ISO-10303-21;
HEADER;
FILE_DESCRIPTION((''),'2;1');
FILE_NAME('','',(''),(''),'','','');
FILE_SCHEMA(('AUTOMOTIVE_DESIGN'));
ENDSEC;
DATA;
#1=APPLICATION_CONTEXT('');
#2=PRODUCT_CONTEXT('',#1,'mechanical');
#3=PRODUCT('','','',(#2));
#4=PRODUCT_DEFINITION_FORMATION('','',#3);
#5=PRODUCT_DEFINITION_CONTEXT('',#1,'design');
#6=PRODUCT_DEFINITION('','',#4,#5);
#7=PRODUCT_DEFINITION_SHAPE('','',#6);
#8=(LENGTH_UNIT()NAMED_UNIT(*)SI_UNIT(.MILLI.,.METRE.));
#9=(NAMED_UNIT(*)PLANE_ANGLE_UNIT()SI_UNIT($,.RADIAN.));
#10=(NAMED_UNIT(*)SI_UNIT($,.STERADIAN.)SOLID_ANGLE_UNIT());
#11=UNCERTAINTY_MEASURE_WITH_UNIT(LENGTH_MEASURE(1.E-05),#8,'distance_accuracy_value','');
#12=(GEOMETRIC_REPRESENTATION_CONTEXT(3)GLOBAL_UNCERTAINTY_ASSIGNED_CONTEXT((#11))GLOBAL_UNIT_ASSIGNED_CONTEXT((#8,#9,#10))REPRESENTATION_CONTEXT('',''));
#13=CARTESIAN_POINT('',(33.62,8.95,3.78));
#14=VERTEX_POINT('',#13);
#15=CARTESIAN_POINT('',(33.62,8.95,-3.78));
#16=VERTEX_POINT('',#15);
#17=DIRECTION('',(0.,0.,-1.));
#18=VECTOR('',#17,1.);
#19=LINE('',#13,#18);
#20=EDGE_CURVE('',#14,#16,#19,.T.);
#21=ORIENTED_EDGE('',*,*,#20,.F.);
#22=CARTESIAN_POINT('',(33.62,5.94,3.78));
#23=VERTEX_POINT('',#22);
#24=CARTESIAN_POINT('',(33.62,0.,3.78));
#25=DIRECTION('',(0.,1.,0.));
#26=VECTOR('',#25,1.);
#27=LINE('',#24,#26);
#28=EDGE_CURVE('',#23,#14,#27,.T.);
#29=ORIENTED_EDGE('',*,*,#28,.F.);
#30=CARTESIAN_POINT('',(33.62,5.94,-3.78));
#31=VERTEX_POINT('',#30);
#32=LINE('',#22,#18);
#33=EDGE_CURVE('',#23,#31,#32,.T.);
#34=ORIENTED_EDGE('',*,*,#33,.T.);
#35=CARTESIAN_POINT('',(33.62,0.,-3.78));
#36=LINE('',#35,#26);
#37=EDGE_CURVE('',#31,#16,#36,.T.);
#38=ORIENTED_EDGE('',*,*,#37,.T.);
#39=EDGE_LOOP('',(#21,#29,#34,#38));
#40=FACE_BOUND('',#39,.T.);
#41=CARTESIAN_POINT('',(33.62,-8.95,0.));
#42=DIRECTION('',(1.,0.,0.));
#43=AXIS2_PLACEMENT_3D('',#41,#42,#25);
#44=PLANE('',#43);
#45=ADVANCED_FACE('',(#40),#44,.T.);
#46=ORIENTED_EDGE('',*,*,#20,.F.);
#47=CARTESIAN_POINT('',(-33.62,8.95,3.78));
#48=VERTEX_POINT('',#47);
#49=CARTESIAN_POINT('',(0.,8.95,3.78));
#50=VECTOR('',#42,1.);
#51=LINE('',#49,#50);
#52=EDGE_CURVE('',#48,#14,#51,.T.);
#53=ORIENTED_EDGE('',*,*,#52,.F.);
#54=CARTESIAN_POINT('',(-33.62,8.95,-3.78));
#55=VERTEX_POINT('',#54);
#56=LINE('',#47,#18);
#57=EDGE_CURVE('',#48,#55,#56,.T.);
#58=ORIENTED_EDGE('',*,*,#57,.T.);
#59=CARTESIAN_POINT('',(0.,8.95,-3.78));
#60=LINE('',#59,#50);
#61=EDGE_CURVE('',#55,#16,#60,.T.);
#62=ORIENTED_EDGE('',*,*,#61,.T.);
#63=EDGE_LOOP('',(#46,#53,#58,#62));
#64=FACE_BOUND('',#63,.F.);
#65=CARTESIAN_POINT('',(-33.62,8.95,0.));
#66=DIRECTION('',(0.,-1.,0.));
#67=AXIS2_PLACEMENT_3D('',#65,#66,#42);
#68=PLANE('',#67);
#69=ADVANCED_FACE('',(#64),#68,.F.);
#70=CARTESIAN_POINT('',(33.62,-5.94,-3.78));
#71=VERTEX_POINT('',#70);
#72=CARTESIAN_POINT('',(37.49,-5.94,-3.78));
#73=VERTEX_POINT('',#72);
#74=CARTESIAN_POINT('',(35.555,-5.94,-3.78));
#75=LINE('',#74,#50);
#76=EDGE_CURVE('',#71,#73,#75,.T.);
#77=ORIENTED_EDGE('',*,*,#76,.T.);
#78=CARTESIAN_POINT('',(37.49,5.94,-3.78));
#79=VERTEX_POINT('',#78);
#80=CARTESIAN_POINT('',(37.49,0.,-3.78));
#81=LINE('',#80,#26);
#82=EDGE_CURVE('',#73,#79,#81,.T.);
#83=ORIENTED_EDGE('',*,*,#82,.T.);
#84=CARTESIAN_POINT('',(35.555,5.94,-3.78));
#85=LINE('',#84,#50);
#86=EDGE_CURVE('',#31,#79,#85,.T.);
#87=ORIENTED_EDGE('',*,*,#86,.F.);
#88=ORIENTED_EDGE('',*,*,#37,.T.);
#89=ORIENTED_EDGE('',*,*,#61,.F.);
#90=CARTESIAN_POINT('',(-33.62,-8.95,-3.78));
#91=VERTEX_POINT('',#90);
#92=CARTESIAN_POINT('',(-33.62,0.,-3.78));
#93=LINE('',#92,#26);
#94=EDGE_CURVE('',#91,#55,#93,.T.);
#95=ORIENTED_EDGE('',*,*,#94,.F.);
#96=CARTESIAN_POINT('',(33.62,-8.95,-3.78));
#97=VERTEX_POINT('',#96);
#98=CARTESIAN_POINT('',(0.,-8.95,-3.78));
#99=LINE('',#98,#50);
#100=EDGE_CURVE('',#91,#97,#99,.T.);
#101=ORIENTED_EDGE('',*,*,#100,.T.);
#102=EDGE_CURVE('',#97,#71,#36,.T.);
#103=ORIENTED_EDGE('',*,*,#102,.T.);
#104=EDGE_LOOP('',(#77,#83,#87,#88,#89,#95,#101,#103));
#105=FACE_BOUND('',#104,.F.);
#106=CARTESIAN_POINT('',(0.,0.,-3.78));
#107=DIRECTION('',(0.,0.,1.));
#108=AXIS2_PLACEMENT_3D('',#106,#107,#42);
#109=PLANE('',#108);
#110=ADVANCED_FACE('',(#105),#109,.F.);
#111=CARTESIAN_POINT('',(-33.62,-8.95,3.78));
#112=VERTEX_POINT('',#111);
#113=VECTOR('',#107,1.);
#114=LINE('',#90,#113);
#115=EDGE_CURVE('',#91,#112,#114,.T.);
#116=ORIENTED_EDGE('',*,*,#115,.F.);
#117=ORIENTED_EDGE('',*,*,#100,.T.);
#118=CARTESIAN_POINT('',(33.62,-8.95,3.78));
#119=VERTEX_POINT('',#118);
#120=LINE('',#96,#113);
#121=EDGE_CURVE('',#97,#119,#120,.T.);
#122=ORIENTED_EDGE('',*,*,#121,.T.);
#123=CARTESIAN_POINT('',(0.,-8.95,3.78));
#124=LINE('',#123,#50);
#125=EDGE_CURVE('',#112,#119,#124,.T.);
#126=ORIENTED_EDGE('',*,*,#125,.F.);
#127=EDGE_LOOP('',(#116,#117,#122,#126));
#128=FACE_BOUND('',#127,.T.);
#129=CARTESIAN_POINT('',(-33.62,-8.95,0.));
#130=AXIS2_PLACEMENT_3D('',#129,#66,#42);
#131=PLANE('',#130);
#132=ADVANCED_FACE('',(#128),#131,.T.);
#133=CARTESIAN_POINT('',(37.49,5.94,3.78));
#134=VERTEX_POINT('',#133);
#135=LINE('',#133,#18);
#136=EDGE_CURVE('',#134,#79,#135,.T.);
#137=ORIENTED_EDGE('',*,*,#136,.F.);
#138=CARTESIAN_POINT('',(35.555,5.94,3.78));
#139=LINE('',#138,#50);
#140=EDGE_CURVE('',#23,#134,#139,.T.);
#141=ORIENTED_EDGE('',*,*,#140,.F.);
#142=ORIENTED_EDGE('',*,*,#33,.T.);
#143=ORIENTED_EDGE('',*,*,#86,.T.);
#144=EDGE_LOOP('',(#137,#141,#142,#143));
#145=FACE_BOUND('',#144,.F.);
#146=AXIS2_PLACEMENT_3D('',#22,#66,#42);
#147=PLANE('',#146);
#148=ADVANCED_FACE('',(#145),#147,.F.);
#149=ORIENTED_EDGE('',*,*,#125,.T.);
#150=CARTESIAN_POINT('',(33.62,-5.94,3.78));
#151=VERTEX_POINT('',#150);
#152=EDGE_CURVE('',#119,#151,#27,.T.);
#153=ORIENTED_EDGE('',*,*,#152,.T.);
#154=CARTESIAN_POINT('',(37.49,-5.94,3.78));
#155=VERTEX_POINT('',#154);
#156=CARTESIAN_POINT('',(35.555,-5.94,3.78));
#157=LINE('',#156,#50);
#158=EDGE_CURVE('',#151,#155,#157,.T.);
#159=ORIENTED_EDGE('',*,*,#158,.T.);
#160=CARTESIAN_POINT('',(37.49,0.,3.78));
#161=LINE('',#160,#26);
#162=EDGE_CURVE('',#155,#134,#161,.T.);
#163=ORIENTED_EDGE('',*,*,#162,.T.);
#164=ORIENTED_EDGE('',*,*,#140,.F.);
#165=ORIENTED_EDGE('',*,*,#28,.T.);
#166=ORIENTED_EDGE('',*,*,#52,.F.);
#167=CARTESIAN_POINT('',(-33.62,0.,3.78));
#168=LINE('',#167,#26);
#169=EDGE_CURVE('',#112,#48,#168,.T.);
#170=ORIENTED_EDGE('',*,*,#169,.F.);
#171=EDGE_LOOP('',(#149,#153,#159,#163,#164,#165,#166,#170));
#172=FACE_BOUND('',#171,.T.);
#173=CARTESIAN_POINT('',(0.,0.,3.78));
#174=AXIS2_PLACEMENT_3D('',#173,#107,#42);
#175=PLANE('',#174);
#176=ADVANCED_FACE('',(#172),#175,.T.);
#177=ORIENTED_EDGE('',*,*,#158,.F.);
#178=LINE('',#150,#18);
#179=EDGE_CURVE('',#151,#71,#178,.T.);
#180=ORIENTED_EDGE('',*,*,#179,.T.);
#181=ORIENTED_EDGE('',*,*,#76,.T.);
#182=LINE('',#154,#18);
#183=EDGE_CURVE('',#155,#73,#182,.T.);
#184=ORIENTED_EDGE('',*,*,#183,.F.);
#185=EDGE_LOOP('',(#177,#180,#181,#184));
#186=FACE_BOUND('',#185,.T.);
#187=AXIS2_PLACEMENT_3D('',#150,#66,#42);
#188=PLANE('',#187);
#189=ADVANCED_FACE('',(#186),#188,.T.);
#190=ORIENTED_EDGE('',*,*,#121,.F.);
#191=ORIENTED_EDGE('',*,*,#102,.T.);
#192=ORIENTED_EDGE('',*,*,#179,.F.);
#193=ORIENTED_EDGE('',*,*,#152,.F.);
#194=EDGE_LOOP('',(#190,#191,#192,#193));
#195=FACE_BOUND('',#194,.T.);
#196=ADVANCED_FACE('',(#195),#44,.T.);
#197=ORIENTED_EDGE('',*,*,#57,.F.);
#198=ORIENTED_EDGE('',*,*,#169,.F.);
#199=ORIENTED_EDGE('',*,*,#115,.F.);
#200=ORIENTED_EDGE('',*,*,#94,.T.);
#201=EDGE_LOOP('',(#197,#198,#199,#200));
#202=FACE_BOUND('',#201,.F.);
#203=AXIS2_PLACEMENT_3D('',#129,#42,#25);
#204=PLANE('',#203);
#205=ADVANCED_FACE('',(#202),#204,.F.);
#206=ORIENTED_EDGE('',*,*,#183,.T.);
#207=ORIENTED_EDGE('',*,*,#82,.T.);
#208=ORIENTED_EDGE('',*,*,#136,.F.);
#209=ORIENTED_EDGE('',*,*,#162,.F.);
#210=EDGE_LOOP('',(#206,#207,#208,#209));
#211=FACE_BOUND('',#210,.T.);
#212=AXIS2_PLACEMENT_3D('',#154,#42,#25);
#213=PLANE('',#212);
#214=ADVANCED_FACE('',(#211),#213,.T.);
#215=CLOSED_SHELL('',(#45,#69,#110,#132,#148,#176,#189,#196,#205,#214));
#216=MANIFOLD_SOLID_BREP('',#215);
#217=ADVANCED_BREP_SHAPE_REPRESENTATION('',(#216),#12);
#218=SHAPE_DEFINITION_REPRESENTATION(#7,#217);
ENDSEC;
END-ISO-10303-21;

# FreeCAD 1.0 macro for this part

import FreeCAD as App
import Part
import Sketcher

doc = App.newDocument("Part")
body = doc.addObject("PartDesign::Body", "Body")

# Sketch on XY plane
sketch1 = body.newObject("Sketcher::SketchObject", "Sketch")
sketch1.AttachmentSupport = (doc.getObject("XY_Plane"), [""])
sketch1.MapMode = "FlatFace"
sketch1.addGeometry(Part.LineSegment(App.Vector(-34, 9, 0), App.Vector(-34, -9, 0)), False)
sketch1.addGeometry(Part.LineSegment(App.Vector(-34, -9, 0), App.Vector(34, -9, 0)), False)
sketch1.addGeometry(Part.LineSegment(App.Vector(34, -9, 0), App.Vector(34, 9, 0)), False)
sketch1.addGeometry(Part.LineSegment(App.Vector(34, 9, 0), App.Vector(-34, 9, 0)), False)
sketch1.addConstraint(Sketcher.Constraint("Coincident", 0, 2, 1, 1))
sketch1.addConstraint(Sketcher.Constraint("Coincident", 1, 2, 2, 1))
sketch1.addConstraint(Sketcher.Constraint("Coincident", 2, 2, 3, 1))
sketch1.addConstraint(Sketcher.Constraint("Coincident", 3, 2, 0, 1))
sketch1.addConstraint(Sketcher.Constraint("Vertical", 0))
sketch1.addConstraint(Sketcher.Constraint("Horizontal", 1))
sketch1.addConstraint(Sketcher.Constraint("Vertical", 2))
sketch1.addConstraint(Sketcher.Constraint("Horizontal", 3))
sketch1.addConstraint(Sketcher.Constraint("Symmetric", 0, 2, 2, 2, -1, 1))
sketch1.addConstraint(Sketcher.Constraint("DistanceY", 0, 2, 0, 1, 17.9))
sketch1.addConstraint(Sketcher.Constraint("DistanceX", 1, 1, 1, 2, 67.24))
pad1 = body.newObject("PartDesign::Pad", "Pad")
pad1.Profile = sketch1
pad1.Length = 7.56
pad1.Midplane = True

# Sketch on XY plane
sketch2 = body.newObject("Sketcher::SketchObject", "Sketch001")
sketch2.AttachmentSupport = (doc.getObject("XY_Plane"), [""])
sketch2.MapMode = "FlatFace"
sketch2.AttachmentOffset = App.Placement(App.Vector(0, 0, 3.78), App.Rotation())
sketch2.addGeometry(Part.LineSegment(App.Vector(33.6, 5.9, 0), App.Vector(33.6, -5.9, 0)), False)
sketch2.addGeometry(Part.LineSegment(App.Vector(33.6, -5.9, 0), App.Vector(37.5, -5.9, 0)), False)
sketch2.addGeometry(Part.LineSegment(App.Vector(37.5, -5.9, 0), App.Vector(37.5, 5.9, 0)), False)
sketch2.addGeometry(Part.LineSegment(App.Vector(37.5, 5.9, 0), App.Vector(33.6, 5.9, 0)), False)
sketch2.addConstraint(Sketcher.Constraint("Coincident", 0, 2, 1, 1))
sketch2.addConstraint(Sketcher.Constraint("Coincident", 1, 2, 2, 1))
sketch2.addConstraint(Sketcher.Constraint("Coincident", 2, 2, 3, 1))
sketch2.addConstraint(Sketcher.Constraint("Coincident", 3, 2, 0, 1))
sketch2.addConstraint(Sketcher.Constraint("Vertical", 0))
sketch2.addConstraint(Sketcher.Constraint("Horizontal", 1))
sketch2.addConstraint(Sketcher.Constraint("Vertical", 2))
sketch2.addConstraint(Sketcher.Constraint("Horizontal", 3))
sketch2.addConstraint(Sketcher.Constraint("DistanceX", 1, 1, 1, 2, 3.87))
sketch2.addConstraint(Sketcher.Constraint("DistanceY", 0, 2, 0, 1, 11.88))
sketch2.addConstraint(Sketcher.Constraint("DistanceX", -1, 1, 0, 2, 33.62))
sketch2.addConstraint(Sketcher.Constraint("DistanceY", 0, 2, -1, 1, 5.94))
pad2 = body.newObject("PartDesign::Pad", "Pad001")
pad2.Profile = sketch2
pad2.Length = 7.56
pad2.Reversed = True

doc.recompute()
